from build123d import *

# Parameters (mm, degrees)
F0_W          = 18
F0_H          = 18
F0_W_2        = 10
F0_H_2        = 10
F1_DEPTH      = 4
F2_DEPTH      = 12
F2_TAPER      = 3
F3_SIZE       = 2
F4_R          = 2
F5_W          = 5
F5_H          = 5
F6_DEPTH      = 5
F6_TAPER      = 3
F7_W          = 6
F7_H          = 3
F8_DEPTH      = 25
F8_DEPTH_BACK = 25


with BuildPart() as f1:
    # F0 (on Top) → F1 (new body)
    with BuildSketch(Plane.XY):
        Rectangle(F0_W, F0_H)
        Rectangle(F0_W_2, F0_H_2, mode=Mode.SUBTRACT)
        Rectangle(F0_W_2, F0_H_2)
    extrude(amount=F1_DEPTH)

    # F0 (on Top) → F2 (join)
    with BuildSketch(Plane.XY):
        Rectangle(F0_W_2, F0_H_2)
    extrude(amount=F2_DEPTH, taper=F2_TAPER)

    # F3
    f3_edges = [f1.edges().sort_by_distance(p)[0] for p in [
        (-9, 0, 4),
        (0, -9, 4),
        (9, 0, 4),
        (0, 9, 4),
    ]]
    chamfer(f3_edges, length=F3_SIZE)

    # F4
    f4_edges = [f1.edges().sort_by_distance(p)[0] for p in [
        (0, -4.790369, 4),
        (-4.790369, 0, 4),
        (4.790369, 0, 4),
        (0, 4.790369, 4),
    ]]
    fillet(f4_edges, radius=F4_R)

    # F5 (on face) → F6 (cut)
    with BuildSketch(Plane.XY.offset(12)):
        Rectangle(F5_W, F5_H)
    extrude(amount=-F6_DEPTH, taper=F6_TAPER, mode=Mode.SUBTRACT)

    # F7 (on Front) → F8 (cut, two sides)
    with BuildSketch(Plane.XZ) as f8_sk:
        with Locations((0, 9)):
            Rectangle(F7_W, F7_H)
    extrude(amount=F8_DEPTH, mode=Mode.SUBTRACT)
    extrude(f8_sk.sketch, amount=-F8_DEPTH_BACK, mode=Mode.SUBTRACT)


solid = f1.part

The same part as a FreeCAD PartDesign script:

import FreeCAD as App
import Part
import Sketcher

V = App.Vector


def edges_at(feature, points):
    """Names of the edges that pass closest to the given points."""
    edges = feature.Shape.Edges
    near = lambda p: min(range(len(edges)), key=lambda i: edges[i].distToShape(Part.Vertex(*p))[0])
    return sorted({f"Edge{near(p) + 1}" for p in points})


def add_polygon(sketch, points):
    """Adds a closed chain of lines whose ends are joined by coincident constraints."""
    first, n = sketch.GeometryCount, len(points)
    for a, b in zip(points, points[1:] + points[:1]):
        sketch.addGeometry(Part.LineSegment(App.Vector(*a, 0), App.Vector(*b, 0)), False)
    for i in range(n):
        sketch.addConstraint(Sketcher.Constraint("Coincident", first + i, 2, first + (i + 1) % n, 1))

doc = App.newDocument("Part")
body = doc.addObject("PartDesign::Body", "Body")

sketch1 = body.newObject("Sketcher::SketchObject", "Sketch")
sketch1.AttachmentSupport = (doc.getObject("XY_Plane"), [""])
sketch1.MapMode = "FlatFace"
add_polygon(sketch1, [(-9, 9), (-9, -9), (9, -9), (9, 9)])
sketch1.addConstraint([
    Sketcher.Constraint("Vertical", 0),
    Sketcher.Constraint("Horizontal", 1),
    Sketcher.Constraint("Vertical", 2),
    Sketcher.Constraint("Horizontal", 3),
    Sketcher.Constraint("Symmetric", 0, 2, 2, 2, -1, 1),
    Sketcher.Constraint("Equal", 3, 0),
    Sketcher.Constraint("DistanceX", 1, 1, 1, 2, 18.0),
])
pad1 = body.newObject("PartDesign::Pad", "Pad")
pad1.Profile = sketch1
pad1.Length = 4

sketch2 = body.newObject("Sketcher::SketchObject", "Sketch001")
sketch2.AttachmentSupport = (doc.getObject("XY_Plane"), [""])
sketch2.MapMode = "FlatFace"
add_polygon(sketch2, [(-5, 5), (-5, -5), (5, -5), (5, 5)])
sketch2.addConstraint([
    Sketcher.Constraint("Vertical", 0),
    Sketcher.Constraint("Horizontal", 1),
    Sketcher.Constraint("Vertical", 2),
    Sketcher.Constraint("Horizontal", 3),
    Sketcher.Constraint("Symmetric", 0, 2, 2, 2, -1, 1),
    Sketcher.Constraint("Equal", 3, 0),
    Sketcher.Constraint("DistanceX", 1, 1, 1, 2, 10.0),
])
pad2 = body.newObject("PartDesign::Pad", "Pad001")
pad2.Profile = sketch2
pad2.Length = 12
pad2.TaperAngle = -3
doc.recompute()

chamfer = body.newObject("PartDesign::Chamfer", "Chamfer")
chamfer.Base = (pad2, edges_at(pad2, [
    (-9, 0, 4),
    (0, -9, 4),
    (9, 0, 4),
    (0, 9, 4),
]))
chamfer.Size = 2
doc.recompute()

fillet = body.newObject("PartDesign::Fillet", "Fillet")
fillet.Base = (chamfer, edges_at(chamfer, [
    (0, -4.79, 4),
    (-4.79, 0, 4),
    (4.79, 0, 4),
    (0, 4.79, 4),
]))
fillet.Radius = 2

sketch3 = body.newObject("Sketcher::SketchObject", "Sketch002")
sketch3.AttachmentSupport = (doc.getObject("XY_Plane"), [""])
sketch3.MapMode = "FlatFace"
sketch3.AttachmentOffset = App.Placement(V(0, 0, 12), App.Rotation())
add_polygon(sketch3, [(-2, 2), (-2, -2), (2, -2), (2, 2)])
sketch3.addConstraint([
    Sketcher.Constraint("Vertical", 0),
    Sketcher.Constraint("Horizontal", 1),
    Sketcher.Constraint("Vertical", 2),
    Sketcher.Constraint("Horizontal", 3),
    Sketcher.Constraint("Symmetric", 0, 2, 2, 2, -1, 1),
    Sketcher.Constraint("Equal", 3, 0),
    Sketcher.Constraint("DistanceX", 1, 1, 1, 2, 5.0),
])
pocket1 = body.newObject("PartDesign::Pocket", "Pocket")
pocket1.Profile = sketch3
pocket1.Length = 5
pocket1.TaperAngle = -3

sketch4 = body.newObject("Sketcher::SketchObject", "Sketch003")
sketch4.AttachmentSupport = (doc.getObject("XZ_Plane"), [""])
sketch4.MapMode = "FlatFace"
add_polygon(sketch4, [(-3, 10.5), (-3, 7.5), (3, 7.5), (3, 10.5)])
sketch4.addConstraint([
    Sketcher.Constraint("Vertical", 0),
    Sketcher.Constraint("Horizontal", 1),
    Sketcher.Constraint("Vertical", 2),
    Sketcher.Constraint("Horizontal", 3),
    Sketcher.Constraint("DistanceX", 1, 1, 1, 2, 6.0),
    Sketcher.Constraint("DistanceY", 0, 2, 0, 1, 3.0),
    Sketcher.Constraint("DistanceX", 0, 2, -1, 1, 3.0),
    Sketcher.Constraint("DistanceY", -1, 1, 0, 2, 7.5),
])
pocket2 = body.newObject("PartDesign::Pocket", "Pocket001")
pocket2.Profile = sketch4
pocket2.Type = "ThroughAll"
pocket2.Midplane = True

doc.recompute()
